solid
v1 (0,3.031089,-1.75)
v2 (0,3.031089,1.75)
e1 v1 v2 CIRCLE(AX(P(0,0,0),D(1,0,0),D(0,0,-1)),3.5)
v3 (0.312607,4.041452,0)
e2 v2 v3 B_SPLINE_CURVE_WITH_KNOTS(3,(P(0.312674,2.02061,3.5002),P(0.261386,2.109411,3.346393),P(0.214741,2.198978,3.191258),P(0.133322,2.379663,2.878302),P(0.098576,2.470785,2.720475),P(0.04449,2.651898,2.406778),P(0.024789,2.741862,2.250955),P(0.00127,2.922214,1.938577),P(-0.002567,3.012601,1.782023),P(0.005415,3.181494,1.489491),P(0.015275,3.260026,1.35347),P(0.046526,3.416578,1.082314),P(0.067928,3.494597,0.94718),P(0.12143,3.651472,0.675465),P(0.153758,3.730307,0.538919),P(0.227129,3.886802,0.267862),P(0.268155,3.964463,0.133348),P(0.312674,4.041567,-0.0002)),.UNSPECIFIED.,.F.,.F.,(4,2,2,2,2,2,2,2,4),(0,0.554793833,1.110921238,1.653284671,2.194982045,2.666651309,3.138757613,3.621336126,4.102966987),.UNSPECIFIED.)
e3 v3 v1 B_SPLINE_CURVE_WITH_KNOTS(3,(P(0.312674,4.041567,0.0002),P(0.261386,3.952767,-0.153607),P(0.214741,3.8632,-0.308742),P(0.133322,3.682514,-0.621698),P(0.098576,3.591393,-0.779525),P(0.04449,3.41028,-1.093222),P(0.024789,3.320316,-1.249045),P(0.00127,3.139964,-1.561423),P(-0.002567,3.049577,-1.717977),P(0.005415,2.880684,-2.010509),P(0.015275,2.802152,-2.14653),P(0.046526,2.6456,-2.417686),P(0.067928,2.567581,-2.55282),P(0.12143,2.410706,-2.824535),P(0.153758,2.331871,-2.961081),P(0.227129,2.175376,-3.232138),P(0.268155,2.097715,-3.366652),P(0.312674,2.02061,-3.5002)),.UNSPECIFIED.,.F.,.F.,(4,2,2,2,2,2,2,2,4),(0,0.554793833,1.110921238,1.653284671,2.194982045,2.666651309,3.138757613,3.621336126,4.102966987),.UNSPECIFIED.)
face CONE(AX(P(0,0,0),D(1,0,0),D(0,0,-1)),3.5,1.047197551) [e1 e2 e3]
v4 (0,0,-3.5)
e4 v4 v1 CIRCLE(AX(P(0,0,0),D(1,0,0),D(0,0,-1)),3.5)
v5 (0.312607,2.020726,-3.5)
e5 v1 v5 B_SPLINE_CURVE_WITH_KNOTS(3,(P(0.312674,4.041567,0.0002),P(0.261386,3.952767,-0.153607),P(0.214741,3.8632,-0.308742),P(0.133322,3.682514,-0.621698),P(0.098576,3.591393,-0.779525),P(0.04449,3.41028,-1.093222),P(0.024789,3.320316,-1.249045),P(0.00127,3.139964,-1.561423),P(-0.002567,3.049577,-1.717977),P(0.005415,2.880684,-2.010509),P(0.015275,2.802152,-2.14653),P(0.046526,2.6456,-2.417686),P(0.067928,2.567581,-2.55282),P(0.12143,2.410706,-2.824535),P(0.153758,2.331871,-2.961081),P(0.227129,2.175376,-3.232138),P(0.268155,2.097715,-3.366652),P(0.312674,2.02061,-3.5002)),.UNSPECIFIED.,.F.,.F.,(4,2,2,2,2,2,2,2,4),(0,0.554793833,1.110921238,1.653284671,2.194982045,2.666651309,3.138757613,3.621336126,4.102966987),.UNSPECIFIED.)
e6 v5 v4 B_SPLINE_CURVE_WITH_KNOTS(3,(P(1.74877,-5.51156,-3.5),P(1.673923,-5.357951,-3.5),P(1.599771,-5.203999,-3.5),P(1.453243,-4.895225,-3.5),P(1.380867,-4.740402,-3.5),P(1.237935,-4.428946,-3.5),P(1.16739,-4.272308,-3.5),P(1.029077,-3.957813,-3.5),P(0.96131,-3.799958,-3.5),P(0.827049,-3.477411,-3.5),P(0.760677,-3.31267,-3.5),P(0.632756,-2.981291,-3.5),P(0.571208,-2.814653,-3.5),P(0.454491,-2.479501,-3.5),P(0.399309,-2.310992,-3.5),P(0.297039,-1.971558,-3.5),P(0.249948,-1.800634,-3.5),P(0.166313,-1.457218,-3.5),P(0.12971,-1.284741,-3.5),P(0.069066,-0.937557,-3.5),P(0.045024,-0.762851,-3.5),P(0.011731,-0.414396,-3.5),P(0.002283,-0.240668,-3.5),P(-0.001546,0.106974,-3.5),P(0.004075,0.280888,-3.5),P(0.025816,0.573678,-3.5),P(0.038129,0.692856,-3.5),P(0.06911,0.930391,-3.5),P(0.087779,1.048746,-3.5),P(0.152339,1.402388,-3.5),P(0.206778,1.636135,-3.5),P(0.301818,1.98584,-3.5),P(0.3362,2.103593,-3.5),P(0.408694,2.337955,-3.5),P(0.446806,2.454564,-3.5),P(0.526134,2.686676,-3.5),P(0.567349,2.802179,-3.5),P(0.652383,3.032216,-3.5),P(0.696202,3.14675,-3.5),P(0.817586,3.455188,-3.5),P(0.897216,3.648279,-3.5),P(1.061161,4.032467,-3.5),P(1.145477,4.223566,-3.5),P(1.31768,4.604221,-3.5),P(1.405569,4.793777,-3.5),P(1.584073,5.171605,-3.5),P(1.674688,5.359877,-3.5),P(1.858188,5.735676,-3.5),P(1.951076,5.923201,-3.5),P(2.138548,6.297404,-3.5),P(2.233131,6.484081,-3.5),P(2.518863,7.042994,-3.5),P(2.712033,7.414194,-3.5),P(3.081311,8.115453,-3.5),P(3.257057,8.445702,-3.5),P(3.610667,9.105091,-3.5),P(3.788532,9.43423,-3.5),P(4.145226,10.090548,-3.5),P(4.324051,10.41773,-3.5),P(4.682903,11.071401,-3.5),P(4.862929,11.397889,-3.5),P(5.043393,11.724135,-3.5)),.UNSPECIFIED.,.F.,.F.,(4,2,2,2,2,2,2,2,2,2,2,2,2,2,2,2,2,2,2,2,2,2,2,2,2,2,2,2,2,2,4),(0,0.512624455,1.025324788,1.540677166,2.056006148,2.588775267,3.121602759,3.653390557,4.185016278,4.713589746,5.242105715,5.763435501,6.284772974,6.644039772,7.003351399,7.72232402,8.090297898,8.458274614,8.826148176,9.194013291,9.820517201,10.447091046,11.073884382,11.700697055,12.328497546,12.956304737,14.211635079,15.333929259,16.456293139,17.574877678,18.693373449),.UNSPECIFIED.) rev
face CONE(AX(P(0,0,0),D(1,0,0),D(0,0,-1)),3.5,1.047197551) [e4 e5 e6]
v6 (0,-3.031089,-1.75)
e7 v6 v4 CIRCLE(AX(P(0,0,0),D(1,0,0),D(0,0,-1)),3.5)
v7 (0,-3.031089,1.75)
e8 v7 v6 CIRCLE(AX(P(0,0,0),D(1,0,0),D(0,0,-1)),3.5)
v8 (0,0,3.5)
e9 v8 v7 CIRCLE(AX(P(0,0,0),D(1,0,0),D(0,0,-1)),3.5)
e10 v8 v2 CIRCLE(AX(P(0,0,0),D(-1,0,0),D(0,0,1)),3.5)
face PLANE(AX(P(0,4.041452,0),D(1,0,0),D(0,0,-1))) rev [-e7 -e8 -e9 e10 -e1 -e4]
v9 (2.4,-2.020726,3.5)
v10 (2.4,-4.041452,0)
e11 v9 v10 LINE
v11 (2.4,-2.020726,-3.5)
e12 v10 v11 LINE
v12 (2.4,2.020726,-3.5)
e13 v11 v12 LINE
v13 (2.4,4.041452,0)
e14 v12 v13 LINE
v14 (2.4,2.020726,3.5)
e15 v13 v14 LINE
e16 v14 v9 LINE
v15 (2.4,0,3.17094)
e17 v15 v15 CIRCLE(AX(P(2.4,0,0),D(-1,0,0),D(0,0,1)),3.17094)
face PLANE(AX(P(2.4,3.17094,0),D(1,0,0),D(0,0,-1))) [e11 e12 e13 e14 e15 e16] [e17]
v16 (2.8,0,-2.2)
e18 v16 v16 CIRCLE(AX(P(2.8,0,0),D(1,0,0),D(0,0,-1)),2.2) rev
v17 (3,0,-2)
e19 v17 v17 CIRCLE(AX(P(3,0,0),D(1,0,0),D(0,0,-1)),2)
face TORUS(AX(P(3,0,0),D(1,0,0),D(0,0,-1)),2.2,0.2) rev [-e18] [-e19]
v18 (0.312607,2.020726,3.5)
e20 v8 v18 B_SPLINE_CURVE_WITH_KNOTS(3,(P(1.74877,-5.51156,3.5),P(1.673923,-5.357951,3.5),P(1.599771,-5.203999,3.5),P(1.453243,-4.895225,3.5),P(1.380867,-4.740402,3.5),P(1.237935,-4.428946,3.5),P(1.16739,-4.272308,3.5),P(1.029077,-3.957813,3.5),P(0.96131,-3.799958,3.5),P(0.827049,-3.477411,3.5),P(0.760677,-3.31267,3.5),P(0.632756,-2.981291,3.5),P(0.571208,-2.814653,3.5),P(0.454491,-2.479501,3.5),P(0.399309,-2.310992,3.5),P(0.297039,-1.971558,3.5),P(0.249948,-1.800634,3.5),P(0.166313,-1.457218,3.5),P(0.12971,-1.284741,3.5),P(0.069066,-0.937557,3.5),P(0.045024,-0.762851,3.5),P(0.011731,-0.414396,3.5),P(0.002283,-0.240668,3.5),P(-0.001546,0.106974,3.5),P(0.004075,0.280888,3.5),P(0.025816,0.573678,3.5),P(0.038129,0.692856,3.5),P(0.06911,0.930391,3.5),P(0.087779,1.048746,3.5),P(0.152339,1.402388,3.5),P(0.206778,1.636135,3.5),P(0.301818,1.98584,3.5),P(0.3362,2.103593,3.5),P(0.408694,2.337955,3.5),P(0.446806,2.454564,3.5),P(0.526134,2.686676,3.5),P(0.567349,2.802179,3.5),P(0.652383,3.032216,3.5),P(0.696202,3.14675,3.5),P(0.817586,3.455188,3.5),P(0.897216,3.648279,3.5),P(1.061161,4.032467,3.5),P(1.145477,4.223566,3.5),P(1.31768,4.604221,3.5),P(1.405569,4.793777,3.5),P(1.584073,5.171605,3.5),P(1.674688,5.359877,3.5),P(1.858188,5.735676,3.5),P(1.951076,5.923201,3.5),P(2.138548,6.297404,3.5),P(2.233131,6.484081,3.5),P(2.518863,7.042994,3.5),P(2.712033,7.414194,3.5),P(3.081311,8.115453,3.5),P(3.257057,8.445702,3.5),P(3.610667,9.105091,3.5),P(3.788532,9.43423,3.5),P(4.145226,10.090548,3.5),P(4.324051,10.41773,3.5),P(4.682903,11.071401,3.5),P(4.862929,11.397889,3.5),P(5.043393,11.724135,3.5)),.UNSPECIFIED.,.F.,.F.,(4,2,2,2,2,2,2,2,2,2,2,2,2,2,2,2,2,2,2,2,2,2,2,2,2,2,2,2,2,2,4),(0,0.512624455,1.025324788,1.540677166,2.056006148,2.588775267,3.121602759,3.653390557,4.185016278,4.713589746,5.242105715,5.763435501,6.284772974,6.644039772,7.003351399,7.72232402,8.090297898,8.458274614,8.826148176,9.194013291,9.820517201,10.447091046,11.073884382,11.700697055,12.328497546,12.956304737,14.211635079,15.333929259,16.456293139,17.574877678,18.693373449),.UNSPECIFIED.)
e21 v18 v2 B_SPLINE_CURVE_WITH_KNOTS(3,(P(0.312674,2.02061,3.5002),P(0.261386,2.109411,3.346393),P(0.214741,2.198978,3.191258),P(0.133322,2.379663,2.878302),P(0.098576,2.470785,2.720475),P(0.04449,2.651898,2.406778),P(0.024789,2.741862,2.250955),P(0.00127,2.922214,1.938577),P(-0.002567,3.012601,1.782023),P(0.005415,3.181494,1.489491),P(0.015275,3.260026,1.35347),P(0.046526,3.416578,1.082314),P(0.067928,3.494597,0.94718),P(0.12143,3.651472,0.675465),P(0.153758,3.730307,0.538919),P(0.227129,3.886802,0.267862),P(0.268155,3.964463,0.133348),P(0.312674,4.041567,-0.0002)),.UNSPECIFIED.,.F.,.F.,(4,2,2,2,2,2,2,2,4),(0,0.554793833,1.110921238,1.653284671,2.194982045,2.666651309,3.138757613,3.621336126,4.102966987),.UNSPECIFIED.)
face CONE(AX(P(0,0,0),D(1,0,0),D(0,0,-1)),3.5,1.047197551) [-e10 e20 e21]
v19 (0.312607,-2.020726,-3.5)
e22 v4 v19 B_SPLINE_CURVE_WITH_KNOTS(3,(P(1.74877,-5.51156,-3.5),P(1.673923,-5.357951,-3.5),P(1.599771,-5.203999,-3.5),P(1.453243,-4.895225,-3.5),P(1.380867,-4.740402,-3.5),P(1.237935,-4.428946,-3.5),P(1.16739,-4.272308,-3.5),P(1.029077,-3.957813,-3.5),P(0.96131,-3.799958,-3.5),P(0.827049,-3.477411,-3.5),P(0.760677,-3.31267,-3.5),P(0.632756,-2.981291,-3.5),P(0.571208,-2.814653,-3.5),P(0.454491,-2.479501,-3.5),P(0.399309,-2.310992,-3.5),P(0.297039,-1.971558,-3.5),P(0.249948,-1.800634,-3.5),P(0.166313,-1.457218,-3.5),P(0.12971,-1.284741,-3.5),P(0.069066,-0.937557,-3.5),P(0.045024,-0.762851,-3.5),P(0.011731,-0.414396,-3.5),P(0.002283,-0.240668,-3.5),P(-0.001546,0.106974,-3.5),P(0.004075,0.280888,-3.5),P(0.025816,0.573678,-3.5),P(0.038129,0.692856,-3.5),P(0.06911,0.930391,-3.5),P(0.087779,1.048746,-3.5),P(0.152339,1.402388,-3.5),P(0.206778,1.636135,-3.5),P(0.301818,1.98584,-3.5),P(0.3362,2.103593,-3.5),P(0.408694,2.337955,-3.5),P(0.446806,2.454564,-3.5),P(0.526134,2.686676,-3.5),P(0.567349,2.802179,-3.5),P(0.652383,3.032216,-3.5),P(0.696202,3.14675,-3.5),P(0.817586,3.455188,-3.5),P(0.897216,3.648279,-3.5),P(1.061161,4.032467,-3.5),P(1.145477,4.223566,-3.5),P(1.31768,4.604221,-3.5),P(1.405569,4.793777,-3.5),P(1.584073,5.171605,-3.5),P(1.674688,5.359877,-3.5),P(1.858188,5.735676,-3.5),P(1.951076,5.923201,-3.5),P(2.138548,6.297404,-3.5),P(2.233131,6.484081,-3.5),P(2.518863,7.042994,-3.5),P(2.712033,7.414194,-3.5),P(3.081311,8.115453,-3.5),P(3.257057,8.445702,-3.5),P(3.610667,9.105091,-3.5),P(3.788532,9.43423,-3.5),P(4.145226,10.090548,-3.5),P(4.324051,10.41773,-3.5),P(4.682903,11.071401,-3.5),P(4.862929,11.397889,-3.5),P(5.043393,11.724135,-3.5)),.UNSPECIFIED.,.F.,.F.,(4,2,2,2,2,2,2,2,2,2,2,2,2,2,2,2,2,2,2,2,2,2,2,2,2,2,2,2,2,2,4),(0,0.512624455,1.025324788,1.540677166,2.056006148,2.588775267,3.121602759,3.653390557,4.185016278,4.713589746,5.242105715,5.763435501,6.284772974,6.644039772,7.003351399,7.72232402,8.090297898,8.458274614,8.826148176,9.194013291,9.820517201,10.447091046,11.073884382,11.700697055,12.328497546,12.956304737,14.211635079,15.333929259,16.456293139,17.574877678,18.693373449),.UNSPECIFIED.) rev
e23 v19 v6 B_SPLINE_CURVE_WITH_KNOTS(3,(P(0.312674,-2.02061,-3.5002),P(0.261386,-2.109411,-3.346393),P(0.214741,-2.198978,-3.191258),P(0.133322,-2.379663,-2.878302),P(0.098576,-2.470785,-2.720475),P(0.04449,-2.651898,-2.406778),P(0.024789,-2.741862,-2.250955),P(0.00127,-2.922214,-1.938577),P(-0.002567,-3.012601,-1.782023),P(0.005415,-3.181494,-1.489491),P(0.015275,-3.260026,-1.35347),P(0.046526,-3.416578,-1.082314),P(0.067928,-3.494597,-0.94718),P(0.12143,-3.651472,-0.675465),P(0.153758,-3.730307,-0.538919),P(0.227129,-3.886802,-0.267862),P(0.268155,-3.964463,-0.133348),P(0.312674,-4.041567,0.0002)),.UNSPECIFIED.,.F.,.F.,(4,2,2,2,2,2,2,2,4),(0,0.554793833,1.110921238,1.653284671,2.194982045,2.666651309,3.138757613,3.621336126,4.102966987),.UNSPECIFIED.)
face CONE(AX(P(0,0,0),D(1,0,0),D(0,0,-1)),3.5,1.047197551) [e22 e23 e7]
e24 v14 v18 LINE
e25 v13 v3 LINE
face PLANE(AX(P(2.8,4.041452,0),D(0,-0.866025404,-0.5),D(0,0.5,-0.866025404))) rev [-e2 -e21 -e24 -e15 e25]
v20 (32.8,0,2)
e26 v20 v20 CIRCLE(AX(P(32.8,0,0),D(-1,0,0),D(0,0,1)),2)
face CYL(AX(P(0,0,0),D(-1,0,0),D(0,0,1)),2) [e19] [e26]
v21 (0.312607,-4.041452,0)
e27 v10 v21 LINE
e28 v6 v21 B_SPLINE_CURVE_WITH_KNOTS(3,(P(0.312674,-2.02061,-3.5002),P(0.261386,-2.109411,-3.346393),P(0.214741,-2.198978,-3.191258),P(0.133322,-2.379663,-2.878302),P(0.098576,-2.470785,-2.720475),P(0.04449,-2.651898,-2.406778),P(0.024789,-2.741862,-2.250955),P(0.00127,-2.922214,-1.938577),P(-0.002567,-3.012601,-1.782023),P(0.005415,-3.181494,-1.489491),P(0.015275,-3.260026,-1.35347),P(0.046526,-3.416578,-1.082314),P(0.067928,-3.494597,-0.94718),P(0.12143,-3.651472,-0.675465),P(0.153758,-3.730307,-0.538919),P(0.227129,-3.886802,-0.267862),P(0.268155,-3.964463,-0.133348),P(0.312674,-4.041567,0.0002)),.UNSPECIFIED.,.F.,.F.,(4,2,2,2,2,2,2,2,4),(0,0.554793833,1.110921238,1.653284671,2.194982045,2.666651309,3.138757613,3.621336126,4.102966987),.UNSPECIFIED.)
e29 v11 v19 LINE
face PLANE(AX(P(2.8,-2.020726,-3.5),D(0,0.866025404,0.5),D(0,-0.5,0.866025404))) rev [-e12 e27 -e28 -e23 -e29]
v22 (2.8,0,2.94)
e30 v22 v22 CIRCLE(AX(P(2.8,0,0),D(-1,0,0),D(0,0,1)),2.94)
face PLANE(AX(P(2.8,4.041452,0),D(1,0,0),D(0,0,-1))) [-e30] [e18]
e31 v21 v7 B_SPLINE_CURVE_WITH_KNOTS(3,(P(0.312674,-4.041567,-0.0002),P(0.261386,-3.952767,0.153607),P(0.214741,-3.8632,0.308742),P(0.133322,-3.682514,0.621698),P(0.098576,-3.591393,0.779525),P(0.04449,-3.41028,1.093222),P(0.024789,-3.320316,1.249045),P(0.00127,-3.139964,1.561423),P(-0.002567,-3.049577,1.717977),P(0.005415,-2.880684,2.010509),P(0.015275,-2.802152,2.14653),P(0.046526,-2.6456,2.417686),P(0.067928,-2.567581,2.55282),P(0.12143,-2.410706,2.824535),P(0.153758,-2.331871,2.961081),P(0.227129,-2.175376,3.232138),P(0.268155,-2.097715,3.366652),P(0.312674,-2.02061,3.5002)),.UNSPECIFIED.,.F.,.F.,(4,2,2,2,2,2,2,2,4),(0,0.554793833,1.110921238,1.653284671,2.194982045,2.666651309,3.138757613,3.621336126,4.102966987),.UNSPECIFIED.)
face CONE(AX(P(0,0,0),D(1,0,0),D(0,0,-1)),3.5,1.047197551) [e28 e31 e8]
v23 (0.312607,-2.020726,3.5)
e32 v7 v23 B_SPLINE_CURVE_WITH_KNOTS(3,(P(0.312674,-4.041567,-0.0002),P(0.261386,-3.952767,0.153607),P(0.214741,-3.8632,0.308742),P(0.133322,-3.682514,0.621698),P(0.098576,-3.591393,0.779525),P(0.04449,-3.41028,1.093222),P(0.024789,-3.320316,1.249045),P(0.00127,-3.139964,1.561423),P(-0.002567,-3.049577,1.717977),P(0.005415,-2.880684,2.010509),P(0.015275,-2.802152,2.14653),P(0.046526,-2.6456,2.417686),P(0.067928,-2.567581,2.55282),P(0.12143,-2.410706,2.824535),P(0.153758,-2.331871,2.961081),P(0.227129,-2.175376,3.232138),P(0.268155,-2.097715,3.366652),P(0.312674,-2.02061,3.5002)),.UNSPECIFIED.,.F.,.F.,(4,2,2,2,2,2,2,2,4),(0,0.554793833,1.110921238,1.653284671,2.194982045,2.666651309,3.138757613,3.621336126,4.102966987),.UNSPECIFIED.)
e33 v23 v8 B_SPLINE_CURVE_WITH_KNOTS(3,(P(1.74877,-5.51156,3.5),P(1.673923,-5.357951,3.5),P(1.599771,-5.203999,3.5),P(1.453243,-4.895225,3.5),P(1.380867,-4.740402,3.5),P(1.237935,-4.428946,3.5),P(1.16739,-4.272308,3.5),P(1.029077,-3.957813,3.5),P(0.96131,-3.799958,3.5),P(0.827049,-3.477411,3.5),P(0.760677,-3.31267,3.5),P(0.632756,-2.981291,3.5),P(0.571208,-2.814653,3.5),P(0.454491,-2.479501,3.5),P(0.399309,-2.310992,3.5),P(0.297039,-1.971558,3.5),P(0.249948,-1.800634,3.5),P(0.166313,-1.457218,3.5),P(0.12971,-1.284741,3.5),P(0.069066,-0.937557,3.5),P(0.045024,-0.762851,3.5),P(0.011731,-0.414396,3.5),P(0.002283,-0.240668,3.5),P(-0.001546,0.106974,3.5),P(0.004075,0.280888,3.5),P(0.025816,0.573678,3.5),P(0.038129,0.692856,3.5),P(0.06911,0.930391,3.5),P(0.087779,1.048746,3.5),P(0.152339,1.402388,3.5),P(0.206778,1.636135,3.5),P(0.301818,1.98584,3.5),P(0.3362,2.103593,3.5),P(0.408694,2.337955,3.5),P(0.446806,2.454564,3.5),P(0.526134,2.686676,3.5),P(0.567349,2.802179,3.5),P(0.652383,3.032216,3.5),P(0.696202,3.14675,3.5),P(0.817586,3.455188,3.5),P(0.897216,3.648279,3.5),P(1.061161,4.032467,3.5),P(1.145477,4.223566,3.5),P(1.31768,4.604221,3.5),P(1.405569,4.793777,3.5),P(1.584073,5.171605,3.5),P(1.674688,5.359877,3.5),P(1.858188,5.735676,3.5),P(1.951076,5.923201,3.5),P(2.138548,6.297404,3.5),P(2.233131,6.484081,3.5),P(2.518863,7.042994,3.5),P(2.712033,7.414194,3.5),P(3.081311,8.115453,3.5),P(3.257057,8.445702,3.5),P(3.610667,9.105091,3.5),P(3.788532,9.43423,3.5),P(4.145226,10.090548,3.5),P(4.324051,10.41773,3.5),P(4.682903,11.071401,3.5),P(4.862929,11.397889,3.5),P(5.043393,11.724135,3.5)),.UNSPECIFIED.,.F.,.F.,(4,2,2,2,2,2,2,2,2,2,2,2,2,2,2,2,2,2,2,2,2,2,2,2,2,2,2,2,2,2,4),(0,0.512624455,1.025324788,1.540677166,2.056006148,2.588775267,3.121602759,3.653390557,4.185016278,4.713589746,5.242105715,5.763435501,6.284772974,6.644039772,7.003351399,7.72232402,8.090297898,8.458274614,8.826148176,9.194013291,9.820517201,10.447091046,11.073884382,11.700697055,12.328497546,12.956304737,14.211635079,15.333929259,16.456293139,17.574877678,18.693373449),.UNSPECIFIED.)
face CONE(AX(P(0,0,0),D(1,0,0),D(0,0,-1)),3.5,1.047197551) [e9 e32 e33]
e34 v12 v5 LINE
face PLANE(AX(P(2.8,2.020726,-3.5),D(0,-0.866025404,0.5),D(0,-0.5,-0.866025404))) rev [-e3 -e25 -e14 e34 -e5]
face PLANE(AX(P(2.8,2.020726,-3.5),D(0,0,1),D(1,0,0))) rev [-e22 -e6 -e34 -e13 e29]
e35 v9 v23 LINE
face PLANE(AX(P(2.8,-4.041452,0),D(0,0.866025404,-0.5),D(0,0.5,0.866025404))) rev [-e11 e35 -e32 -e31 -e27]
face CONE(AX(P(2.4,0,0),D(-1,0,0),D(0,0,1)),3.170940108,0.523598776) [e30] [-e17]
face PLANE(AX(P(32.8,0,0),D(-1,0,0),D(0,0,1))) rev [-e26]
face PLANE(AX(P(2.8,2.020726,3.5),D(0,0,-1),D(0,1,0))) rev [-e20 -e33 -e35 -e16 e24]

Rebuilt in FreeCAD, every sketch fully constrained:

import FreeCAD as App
import Part
import Sketcher

V = App.Vector
Q = App.Units.Quantity


def edges_at(feature, points):
    """Names of the edges that pass closest to the given points."""
    edges = feature.Shape.Edges
    near = lambda p: min(range(len(edges)), key=lambda i: edges[i].distToShape(Part.Vertex(*p))[0])
    return sorted({f"Edge{near(p) + 1}" for p in points})


def add_polygon(sketch, points):
    """Adds a closed chain of lines whose ends are joined by coincident constraints."""
    first, n = sketch.GeometryCount, len(points)
    for a, b in zip(points, points[1:] + points[:1]):
        sketch.addGeometry(Part.LineSegment(App.Vector(*a, 0), App.Vector(*b, 0)), False)
    for i in range(n):
        sketch.addConstraint(Sketcher.Constraint("Coincident", first + i, 2, first + (i + 1) % n, 1))

doc = App.newDocument("Part")
params = doc.addObject("Spreadsheet::Sheet", "Params")
for row, (alias, value) in enumerate([
    ("pad1_length", "2.8 mm"),
    ("sketch2_height", "2 mm"),
    ("sketch2_width", "32.8 mm"),
    ("revolution_angle", "360 deg"),
    ("sketch3_width", "10 mm"),
    ("sketch3_height", "5 mm"),
    ("groove_angle", "360 deg"),
    ("sketch4_width", "0.4 mm"),
    ("groove2_angle", "360 deg"),
    ("fillet_radius", "0.2 mm"),
], start=1):
    params.set(f"A{row}", alias)
    params.set(f"B{row}", "=" + value)
    params.setAlias(f"B{row}", alias)

body = doc.addObject("PartDesign::Body", "Body")

sketch1 = doc.addObject("Sketcher::SketchObject", "Sketch")
body.addObject(sketch1)
sketch1.AttachmentSupport = (doc.YZ_Plane, [""])
sketch1.MapMode = "FlatFace"
add_polygon(sketch1, [(-2.020726, -3.5), (2.020726, -3.5), (4.041452, 0), (2.020726, 3.5), (-2.020726, 3.5), (-4.041452, 0)])
sketch1.addConstraint(Sketcher.Constraint("Horizontal", 0))
sketch1.addConstraint(Sketcher.Constraint("Horizontal", 3))
sketch1.addConstraint(Sketcher.Constraint("Symmetric", 0, 2, 3, 2, -1, 1))
sketch1.addConstraint(Sketcher.Constraint("Symmetric", 1, 2, 4, 2, -1, 1))
sketch1.addConstraint(Sketcher.Constraint("PointOnObject", 1, 2, -1))
sketch1.addConstraint(Sketcher.Constraint("Parallel", 2, 5))
sketch1.addConstraint(Sketcher.Constraint("Vertical", 0, 2, 2, 2))
sketch1.addConstraint(Sketcher.Constraint("Angle", 1, Q("60 deg")))
sketch1.addConstraint(Sketcher.Constraint("DistanceY", 0, 2, 2, 2, 7.0))
sketch1.addConstraint(Sketcher.Constraint("DistanceX", 0, 1, 0, 2, 4.041452))
pad1 = doc.addObject("PartDesign::Pad", "Pad")
body.addObject(pad1)
pad1.Profile = sketch1
pad1.setExpression("Length", "Params.pad1_length")

sketch2 = doc.addObject("Sketcher::SketchObject", "Sketch001")
body.addObject(sketch2)
sketch2.AttachmentSupport = (doc.XY_Plane, [""])
sketch2.MapMode = "FlatFace"
add_polygon(sketch2, [(0, 0), (32.8, 0), (32.8, 2), (0, 2)])
sketch2.addConstraint(Sketcher.Constraint("Horizontal", 0))
sketch2.addConstraint(Sketcher.Constraint("Vertical", 1))
sketch2.addConstraint(Sketcher.Constraint("Horizontal", 2))
sketch2.addConstraint(Sketcher.Constraint("Vertical", 3))
sketch2.addConstraint(Sketcher.Constraint("Coincident", 3, 2, -1, 1))
sketch2.addConstraint(Sketcher.Constraint("DistanceY", 1, 1, 1, 2, 2.0))
sketch2.addConstraint(Sketcher.Constraint("DistanceX", 0, 1, 0, 2, 32.8))
sketch2.setExpression("Constraints[9]", "Params.sketch2_height")
sketch2.setExpression("Constraints[10]", "Params.sketch2_width")
revolution = doc.addObject("PartDesign::Revolution", "Revolution")
body.addObject(revolution)
revolution.Profile = sketch2
revolution.ReferenceAxis = (sketch2, ["H_Axis"])
revolution.setExpression("Angle", "Params.revolution_angle")

sketch3 = doc.addObject("Sketcher::SketchObject", "Sketch002")
body.addObject(sketch3)
sketch3.AttachmentSupport = (doc.XY_Plane, [""])
sketch3.MapMode = "FlatFace"
add_polygon(sketch3, [(0, 3.5), (3.199359, 9.041452), (3.199359, 14.041452), (-10, 14.041452), (-10, 3.5)])
sketch3.addConstraint(Sketcher.Constraint("Vertical", 1))
sketch3.addConstraint(Sketcher.Constraint("Horizontal", 2))
sketch3.addConstraint(Sketcher.Constraint("Vertical", 3))
sketch3.addConstraint(Sketcher.Constraint("Horizontal", 4))
sketch3.addConstraint(Sketcher.Constraint("PointOnObject", 4, 2, -2))
sketch3.addConstraint(Sketcher.Constraint("DistanceX", 4, 1, 4, 2, 10.0))
sketch3.addConstraint(Sketcher.Constraint("DistanceY", 1, 1, 1, 2, 5.0))
sketch3.addConstraint(Sketcher.Constraint("Angle", 0, Q("60 deg")))
sketch3.addConstraint(Sketcher.Constraint("DistanceY", -1, 1, 3, 2, 3.5))
sketch3.addConstraint(Sketcher.Constraint("DistanceX", 2, 2, 2, 1, 13.199359))
sketch3.setExpression("Constraints[10]", "Params.sketch3_width")
sketch3.setExpression("Constraints[11]", "Params.sketch3_height")
groove = doc.addObject("PartDesign::Groove", "Groove")
body.addObject(groove)
groove.Profile = sketch3
groove.ReferenceAxis = (sketch3, ["H_Axis"])
groove.setExpression("Angle", "Params.groove_angle")

sketch4 = doc.addObject("Sketcher::SketchObject", "Sketch003")
body.addObject(sketch4)
sketch4.AttachmentSupport = (doc.XY_Plane, [""])
sketch4.MapMode = "FlatFace"
add_polygon(sketch4, [(2.4, 3.17094), (2.8, 2.94), (2.8, 4.041452), (2.4, 4.041452)])
sketch4.addConstraint(Sketcher.Constraint("Vertical", 1))
sketch4.addConstraint(Sketcher.Constraint("Horizontal", 2))
sketch4.addConstraint(Sketcher.Constraint("Vertical", 3))
sketch4.addConstraint(Sketcher.Constraint("Angle", 0, Q("-30 deg")))
sketch4.addConstraint(Sketcher.Constraint("DistanceX", 2, 2, 2, 1, 0.4))
sketch4.addConstraint(Sketcher.Constraint("DistanceX", -1, 1, 0, 2, 2.8))
sketch4.addConstraint(Sketcher.Constraint("DistanceY", -1, 1, 0, 2, 2.94))
sketch4.addConstraint(Sketcher.Constraint("DistanceY", 1, 1, 1, 2, 1.101452))
sketch4.setExpression("Constraints[8]", "Params.sketch4_width")
groove2 = doc.addObject("PartDesign::Groove", "Groove001")
body.addObject(groove2)
groove2.Profile = sketch4
groove2.ReferenceAxis = (sketch4, ["H_Axis"])
groove2.setExpression("Angle", "Params.groove2_angle")
doc.recompute()

fillet = doc.addObject("PartDesign::Fillet", "Fillet")
body.addObject(fillet)
fillet.Base = (groove2, edges_at(groove2, [(2.8, 0, -2)]))
fillet.setExpression("Radius", "Params.fillet_radius")

doc.recompute()
